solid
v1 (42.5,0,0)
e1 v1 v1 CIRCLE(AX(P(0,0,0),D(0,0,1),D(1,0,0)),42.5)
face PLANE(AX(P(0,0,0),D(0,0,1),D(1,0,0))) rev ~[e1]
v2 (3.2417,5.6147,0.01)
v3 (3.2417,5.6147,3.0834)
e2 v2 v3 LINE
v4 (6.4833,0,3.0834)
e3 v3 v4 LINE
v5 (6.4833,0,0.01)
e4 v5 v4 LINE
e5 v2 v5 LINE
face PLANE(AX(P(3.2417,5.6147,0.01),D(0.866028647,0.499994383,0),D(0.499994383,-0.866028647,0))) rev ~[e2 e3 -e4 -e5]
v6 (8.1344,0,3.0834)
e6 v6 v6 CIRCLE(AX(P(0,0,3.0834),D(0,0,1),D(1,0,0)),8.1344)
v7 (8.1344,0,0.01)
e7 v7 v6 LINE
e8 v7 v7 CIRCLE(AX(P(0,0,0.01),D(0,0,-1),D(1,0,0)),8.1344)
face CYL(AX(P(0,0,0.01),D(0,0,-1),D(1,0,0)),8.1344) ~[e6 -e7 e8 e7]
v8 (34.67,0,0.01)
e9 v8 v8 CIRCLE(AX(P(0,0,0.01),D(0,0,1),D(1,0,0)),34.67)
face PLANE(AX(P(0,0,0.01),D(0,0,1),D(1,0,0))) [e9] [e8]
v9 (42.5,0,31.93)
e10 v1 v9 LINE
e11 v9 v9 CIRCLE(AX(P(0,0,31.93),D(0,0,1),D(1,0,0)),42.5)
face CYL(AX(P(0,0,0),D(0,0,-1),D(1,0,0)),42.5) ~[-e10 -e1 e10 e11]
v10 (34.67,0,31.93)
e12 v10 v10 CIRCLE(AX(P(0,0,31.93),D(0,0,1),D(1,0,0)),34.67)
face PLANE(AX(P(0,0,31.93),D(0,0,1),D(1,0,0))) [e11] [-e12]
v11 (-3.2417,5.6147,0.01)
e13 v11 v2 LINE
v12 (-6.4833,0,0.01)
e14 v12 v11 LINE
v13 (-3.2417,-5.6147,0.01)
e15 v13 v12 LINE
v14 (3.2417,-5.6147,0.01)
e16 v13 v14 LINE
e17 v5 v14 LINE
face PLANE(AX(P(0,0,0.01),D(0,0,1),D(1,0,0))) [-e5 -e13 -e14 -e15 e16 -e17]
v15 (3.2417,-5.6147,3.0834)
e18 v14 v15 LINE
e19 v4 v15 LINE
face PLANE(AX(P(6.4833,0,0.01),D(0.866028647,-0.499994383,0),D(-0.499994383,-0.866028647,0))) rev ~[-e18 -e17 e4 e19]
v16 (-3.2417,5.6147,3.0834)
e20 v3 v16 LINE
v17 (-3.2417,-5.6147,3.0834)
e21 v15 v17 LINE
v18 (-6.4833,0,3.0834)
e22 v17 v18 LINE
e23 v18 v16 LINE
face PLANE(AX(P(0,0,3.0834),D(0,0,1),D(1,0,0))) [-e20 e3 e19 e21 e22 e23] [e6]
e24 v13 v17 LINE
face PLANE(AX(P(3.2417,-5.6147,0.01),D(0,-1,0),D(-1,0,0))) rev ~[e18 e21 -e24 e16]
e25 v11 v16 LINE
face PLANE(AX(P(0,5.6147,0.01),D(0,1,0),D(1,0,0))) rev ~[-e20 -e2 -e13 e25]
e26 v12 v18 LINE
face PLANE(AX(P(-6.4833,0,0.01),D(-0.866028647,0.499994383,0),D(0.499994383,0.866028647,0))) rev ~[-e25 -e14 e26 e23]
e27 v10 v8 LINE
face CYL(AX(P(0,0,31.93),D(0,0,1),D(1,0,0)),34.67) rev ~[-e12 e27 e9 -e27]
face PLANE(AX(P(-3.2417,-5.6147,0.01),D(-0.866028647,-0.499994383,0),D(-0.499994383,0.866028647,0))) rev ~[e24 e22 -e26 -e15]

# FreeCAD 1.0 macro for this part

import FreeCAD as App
import Part
import Sketcher
from FreeCAD import Vector
Q = App.Units.Quantity

doc = App.newDocument("Part")
body = doc.addObject("PartDesign::Body", "Body")

sketch1 = body.newObject("Sketcher::SketchObject", "Sketch")
sketch1.AttachmentSupport = (doc.getObject("XY_Plane"), [""])
sketch1.MapMode = "FlatFace"
sketch1.addGeometry(Part.Circle(Vector(0, 0, 0), Vector(0, 0, 1), 42), False)
sketch1.addConstraint([
    Sketcher.Constraint("Coincident", 0, 3, -1, 1),
    Sketcher.Constraint("Diameter", 0, 85.0),
])
pad1 = body.newObject("PartDesign::Pad", "Pad")
pad1.Profile = sketch1
pad1.Length = 31.93

sketch2 = body.newObject("Sketcher::SketchObject", "Sketch001")
sketch2.AttachmentSupport = (doc.getObject("XY_Plane"), [""])
sketch2.MapMode = "FlatFace"
sketch2.AttachmentOffset = App.Placement(Vector(0, 0, 31.93), App.Rotation())
sketch2.addGeometry(Part.Circle(Vector(0, 0, 0), Vector(0, 0, 1), 35), False)
sketch2.addConstraint([
    Sketcher.Constraint("Coincident", 0, 3, -1, 1),
    Sketcher.Constraint("Diameter", 0, 69.34),
])
pocket1 = body.newObject("PartDesign::Pocket", "Pocket")
pocket1.Profile = sketch2
pocket1.Length = 31.92

sketch3 = body.newObject("Sketcher::SketchObject", "Sketch002")
sketch3.AttachmentSupport = (doc.getObject("XY_Plane"), [""])
sketch3.MapMode = "FlatFace"
sketch3.AttachmentOffset = App.Placement(Vector(0, 0, 0.01), App.Rotation())
sketch3.addGeometry([
    Part.Circle(Vector(0, 0, 0), Vector(0, 0, 1), 8),
    Part.LineSegment(Vector(3, 6, 0), Vector(6, 0, 0)),
    Part.LineSegment(Vector(6, 0, 0), Vector(3, -6, 0)),
    Part.LineSegment(Vector(3, -6, 0), Vector(-3, -6, 0)),
    Part.LineSegment(Vector(-3, -6, 0), Vector(-6, 0, 0)),
    Part.LineSegment(Vector(-6, 0, 0), Vector(-3, 6, 0)),
    Part.LineSegment(Vector(-3, 6, 0), Vector(3, 6, 0)),
], False)
sketch3.addConstraint([
    Sketcher.Constraint("Coincident", 1, 2, 2, 1),
    Sketcher.Constraint("Coincident", 2, 2, 3, 1),
    Sketcher.Constraint("Coincident", 3, 2, 4, 1),
    Sketcher.Constraint("Coincident", 4, 2, 5, 1),
    Sketcher.Constraint("Coincident", 5, 2, 6, 1),
    Sketcher.Constraint("Coincident", 6, 2, 1, 1),
    Sketcher.Constraint("Horizontal", 3),
    Sketcher.Constraint("Horizontal", 6),
    Sketcher.Constraint("Coincident", 0, 3, -1, 1),
    Sketcher.Constraint("Symmetric", 1, 2, 4, 2, -1, 1),
    Sketcher.Constraint("Symmetric", 2, 2, 5, 2, -1, 1),
    Sketcher.Constraint("PointOnObject", 1, 2, -1),
    Sketcher.Constraint("Parallel", 1, 4),
    Sketcher.Constraint("Vertical", 3, 2, 5, 2),
    Sketcher.Constraint("Angle", 1, Q("-60.0004 deg")),
    Sketcher.Constraint("Diameter", 0, 16.2688),
    Sketcher.Constraint("DistanceX", 4, 2, 1, 2, 12.9666),
    Sketcher.Constraint("DistanceX", 3, 2, 3, 1, 6.4834),
])
pad2 = body.newObject("PartDesign::Pad", "Pad001")
pad2.Profile = sketch3
pad2.Length = 3.0734

doc.recompute()
